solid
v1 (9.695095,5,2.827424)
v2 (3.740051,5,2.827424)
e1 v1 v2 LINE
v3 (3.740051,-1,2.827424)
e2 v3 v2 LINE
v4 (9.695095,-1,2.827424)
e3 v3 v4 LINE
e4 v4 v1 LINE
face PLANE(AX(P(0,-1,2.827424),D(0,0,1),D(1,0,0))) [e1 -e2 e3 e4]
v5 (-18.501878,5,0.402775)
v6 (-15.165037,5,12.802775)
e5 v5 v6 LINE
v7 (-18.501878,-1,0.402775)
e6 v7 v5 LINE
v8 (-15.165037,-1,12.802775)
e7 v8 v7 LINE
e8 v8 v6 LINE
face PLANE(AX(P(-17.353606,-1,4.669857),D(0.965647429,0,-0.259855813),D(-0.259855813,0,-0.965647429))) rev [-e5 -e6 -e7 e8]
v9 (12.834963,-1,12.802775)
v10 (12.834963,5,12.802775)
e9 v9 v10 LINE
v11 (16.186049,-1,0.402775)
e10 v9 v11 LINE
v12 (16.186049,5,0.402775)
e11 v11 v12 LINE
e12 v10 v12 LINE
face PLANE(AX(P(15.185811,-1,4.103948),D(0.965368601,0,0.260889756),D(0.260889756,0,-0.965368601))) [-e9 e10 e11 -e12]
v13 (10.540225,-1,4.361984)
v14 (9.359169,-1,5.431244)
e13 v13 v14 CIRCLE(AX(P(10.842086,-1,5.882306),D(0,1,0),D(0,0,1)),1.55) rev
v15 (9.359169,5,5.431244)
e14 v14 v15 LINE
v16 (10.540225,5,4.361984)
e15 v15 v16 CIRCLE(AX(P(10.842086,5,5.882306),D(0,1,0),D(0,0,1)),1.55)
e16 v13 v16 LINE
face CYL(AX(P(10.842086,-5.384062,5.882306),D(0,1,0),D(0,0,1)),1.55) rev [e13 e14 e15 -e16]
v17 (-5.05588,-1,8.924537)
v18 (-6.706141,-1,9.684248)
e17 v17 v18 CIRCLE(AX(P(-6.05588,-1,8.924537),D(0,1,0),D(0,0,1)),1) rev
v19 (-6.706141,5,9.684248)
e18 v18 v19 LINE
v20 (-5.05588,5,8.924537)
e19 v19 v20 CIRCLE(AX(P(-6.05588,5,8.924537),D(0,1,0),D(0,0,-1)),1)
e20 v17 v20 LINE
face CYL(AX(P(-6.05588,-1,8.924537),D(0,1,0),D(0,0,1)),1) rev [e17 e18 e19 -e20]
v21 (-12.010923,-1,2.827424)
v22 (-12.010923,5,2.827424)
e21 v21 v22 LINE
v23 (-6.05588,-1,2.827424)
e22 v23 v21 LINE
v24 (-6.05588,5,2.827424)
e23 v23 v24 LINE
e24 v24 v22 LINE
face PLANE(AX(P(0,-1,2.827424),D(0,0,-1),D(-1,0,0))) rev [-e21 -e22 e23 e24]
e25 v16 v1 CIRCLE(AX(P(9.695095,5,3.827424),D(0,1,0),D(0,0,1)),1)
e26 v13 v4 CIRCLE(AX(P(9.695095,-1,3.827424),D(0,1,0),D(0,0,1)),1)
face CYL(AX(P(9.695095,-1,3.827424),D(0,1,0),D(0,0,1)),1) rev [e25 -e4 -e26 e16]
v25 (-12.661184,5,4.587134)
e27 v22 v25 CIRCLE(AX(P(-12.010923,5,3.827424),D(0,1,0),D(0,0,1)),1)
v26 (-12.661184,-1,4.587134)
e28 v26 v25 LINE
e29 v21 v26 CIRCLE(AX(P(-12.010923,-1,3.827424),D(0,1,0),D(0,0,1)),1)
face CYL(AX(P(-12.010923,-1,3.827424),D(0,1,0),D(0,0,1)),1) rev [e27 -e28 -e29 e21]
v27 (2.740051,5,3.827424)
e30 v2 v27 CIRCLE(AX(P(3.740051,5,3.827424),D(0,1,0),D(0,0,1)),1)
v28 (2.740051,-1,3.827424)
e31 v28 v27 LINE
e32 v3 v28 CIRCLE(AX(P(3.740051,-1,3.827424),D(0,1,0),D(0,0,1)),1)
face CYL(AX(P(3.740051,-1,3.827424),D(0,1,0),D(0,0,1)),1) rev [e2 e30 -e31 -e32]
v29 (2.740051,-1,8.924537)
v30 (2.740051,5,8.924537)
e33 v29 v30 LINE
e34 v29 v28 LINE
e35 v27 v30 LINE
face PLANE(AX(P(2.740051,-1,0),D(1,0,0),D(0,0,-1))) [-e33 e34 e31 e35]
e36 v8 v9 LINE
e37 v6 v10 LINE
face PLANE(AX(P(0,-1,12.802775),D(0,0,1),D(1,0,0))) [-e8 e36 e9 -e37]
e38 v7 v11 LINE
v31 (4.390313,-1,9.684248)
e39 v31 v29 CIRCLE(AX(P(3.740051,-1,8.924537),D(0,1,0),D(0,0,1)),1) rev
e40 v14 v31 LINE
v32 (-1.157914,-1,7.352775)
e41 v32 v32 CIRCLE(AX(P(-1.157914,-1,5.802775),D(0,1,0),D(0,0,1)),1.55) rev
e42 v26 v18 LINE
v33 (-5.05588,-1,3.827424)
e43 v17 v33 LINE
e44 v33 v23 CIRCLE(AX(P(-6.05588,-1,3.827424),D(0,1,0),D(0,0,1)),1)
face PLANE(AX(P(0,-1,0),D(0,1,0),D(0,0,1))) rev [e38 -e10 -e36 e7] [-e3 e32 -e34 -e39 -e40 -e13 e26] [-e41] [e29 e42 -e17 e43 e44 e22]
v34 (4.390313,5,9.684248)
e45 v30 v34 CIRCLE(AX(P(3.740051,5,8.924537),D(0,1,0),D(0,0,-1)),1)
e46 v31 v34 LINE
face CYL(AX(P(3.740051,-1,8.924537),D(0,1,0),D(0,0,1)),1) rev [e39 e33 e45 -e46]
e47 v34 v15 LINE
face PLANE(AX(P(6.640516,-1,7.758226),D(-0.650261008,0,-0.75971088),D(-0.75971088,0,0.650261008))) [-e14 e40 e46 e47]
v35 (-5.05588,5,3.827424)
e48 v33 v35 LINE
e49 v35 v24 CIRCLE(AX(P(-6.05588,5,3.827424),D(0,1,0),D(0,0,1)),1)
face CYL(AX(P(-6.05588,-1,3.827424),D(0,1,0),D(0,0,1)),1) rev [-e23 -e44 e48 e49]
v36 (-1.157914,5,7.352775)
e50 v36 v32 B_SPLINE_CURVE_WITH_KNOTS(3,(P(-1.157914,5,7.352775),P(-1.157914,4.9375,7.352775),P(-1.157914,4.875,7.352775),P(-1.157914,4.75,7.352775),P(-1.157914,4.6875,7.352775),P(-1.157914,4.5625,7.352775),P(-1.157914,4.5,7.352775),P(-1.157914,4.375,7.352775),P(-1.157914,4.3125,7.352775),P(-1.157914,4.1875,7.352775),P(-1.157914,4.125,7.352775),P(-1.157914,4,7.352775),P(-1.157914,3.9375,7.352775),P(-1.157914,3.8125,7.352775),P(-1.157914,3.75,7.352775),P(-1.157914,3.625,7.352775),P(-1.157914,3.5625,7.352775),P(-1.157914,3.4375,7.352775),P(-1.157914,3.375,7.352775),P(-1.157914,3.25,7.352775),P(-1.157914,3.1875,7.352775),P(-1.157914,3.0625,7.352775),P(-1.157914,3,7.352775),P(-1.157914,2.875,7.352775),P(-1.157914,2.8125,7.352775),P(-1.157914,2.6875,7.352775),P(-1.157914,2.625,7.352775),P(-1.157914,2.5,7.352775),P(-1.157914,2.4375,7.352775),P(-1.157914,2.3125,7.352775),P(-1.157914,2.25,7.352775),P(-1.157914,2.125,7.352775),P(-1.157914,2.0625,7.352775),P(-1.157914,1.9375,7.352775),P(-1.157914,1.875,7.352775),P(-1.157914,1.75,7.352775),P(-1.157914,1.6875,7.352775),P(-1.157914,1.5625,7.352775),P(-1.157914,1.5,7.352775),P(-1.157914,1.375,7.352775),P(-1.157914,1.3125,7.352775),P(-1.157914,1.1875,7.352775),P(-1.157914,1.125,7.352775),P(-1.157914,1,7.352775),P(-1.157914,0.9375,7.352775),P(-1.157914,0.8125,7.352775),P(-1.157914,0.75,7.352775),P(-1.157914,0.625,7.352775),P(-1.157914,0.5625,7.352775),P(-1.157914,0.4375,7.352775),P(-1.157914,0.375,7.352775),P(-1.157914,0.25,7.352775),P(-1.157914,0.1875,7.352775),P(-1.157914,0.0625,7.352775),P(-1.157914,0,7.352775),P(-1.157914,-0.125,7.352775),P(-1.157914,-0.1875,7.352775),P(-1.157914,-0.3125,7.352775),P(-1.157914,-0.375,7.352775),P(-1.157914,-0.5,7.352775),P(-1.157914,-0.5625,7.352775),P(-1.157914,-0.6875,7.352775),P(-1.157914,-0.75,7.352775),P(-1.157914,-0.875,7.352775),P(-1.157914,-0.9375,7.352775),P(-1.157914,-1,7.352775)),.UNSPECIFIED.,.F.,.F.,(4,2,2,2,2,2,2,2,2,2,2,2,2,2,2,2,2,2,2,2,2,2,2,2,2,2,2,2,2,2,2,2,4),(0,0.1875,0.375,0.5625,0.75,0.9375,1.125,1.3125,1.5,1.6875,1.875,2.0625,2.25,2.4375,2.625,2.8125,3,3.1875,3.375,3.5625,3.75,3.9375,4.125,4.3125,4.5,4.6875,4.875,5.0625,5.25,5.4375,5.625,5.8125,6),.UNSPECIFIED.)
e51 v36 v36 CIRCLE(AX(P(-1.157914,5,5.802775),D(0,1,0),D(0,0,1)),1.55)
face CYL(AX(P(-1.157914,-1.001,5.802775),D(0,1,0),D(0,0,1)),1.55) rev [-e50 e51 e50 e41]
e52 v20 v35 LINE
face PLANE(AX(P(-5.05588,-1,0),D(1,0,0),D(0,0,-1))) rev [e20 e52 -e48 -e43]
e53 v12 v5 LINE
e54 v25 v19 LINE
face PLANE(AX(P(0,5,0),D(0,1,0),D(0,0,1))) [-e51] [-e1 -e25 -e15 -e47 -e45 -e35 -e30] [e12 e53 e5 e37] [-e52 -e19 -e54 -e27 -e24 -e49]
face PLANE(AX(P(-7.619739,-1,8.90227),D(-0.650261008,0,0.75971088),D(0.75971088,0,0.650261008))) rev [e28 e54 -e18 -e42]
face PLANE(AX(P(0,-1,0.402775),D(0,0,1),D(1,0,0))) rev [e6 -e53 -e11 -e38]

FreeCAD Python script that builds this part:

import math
import FreeCAD as App
import Part
import Sketcher

V = App.Vector

doc = App.newDocument("Part")
body = doc.addObject("PartDesign::Body", "Body")

# Sketch on XZ plane
sketch1 = body.newObject("Sketcher::SketchObject", "Sketch")
sketch1.AttachmentSupport = (doc.getObject("XZ_Plane"), [""])
sketch1.MapMode = "FlatFace"
sketch1.addGeometry([
    Part.LineSegment(V(12.8, 12.8, 0), V(16.2, 0.4, 0)),  # 0
    Part.LineSegment(V(16.2, 0.4, 0), V(-18.5, 0.4, 0)),  # 1
    Part.LineSegment(V(-18.5, 0.4, 0), V(-15.2, 12.8, 0)),  # 2
    Part.LineSegment(V(-15.2, 12.8, 0), V(12.8, 12.8, 0)),  # 3
    Part.LineSegment(V(-5.1, 3.8, 0), V(-5.1, 8.9, 0)),  # 4
    Part.ArcOfCircle(Part.Circle(V(-6.1, 8.9, 0), V(0, 0, 1), 1), math.radians(0), math.radians(131)),  # 5
    Part.LineSegment(V(-6.7, 9.7, 0), V(-12.7, 4.6, 0)),  # 6
    Part.ArcOfCircle(Part.Circle(V(-12, 3.8, 0), V(0, 0, 1), 1), math.radians(131), math.radians(270)),  # 7
    Part.LineSegment(V(-12, 2.8, 0), V(-6.1, 2.8, 0)),  # 8
    Part.ArcOfCircle(Part.Circle(V(-6.1, 3.8, 0), V(0, 0, 1), 1), math.radians(-90), math.radians(0)),  # 9
    Part.ArcOfCircle(Part.Circle(V(9.7, 3.8, 0), V(0, 0, 1), 1), math.radians(-90), math.radians(49)),  # 10
    Part.LineSegment(V(10.3, 4.6, 0), V(4.4, 9.7, 0)),  # 11
    Part.ArcOfCircle(Part.Circle(V(3.7, 8.9, 0), V(0, 0, 1), 1), math.radians(49), math.radians(180)),  # 12
    Part.LineSegment(V(2.7, 8.9, 0), V(2.7, 3.8, 0)),  # 13
    Part.ArcOfCircle(Part.Circle(V(3.7, 3.8, 0), V(0, 0, 1), 1), math.radians(-180), math.radians(-90)),  # 14
    Part.LineSegment(V(3.7, 2.8, 0), V(9.7, 2.8, 0)),  # 15
], False)
sketch1.addConstraint([
    Sketcher.Constraint("Coincident", 0, 2, 1, 1),
    Sketcher.Constraint("Coincident", 1, 2, 2, 1),
    Sketcher.Constraint("Coincident", 2, 2, 3, 1),
    Sketcher.Constraint("Coincident", 3, 2, 0, 1),
    Sketcher.Constraint("Tangent", 4, 2, 5, 1),
    Sketcher.Constraint("Tangent", 5, 2, 6, 1),
    Sketcher.Constraint("Tangent", 6, 2, 7, 1),
    Sketcher.Constraint("Tangent", 7, 2, 8, 1),
    Sketcher.Constraint("Tangent", 8, 2, 9, 1),
    Sketcher.Constraint("Tangent", 9, 2, 4, 1),
    Sketcher.Constraint("Tangent", 10, 2, 11, 1),
    Sketcher.Constraint("Tangent", 11, 2, 12, 1),
    Sketcher.Constraint("Tangent", 12, 2, 13, 1),
    Sketcher.Constraint("Tangent", 13, 2, 14, 1),
    Sketcher.Constraint("Tangent", 14, 2, 15, 1),
    Sketcher.Constraint("Tangent", 15, 2, 10, 1),
    Sketcher.Constraint("Horizontal", 1),
    Sketcher.Constraint("Horizontal", 3),
    Sketcher.Constraint("Vertical", 4),
    Sketcher.Constraint("Horizontal", 8),
    Sketcher.Constraint("Vertical", 13),
    Sketcher.Constraint("Horizontal", 15),
    Sketcher.Constraint("Equal", 5, 7),
    Sketcher.Constraint("Equal", 7, 9),
    Sketcher.Constraint("Equal", 9, 10),
    Sketcher.Constraint("Equal", 10, 12),
    Sketcher.Constraint("Equal", 12, 14),
    Sketcher.Constraint("Horizontal", 9, 3, 10, 3),
    Sketcher.Constraint("Horizontal", 5, 3, 12, 3),
    Sketcher.Constraint("Horizontal", 6, 2, 10, 2),
    Sketcher.Constraint("Radius", 5, 1.0),
    Sketcher.Constraint("DistanceX", 3, 1, 3, 2, 28.0),
    Sketcher.Constraint("DistanceY", 1, 2, 2, 2, 12.4),
    Sketcher.Constraint("DistanceX", 1, 2, 1, 1, 34.687927),
    Sketcher.Constraint("DistanceX", 8, 1, 8, 2, 5.955043),
    Sketcher.Constraint("DistanceY", 4, 1, 4, 2, 5.097113),
    Sketcher.Constraint("DistanceX", 5, 3, -1, 1, 6.05588),
    Sketcher.Constraint("DistanceX", -1, 1, 12, 3, 3.740051),
    Sketcher.Constraint("DistanceX", -1, 1, 0, 2, 16.186049),
    Sketcher.Constraint("DistanceY", 0, 2, 10, 3, 3.424649),
    Sketcher.Constraint("DistanceX", 1, 2, 2, 2, 3.336841),
    Sketcher.Constraint("DistanceY", -1, 1, 5, 3, 8.924537),
])
pad1 = body.newObject("PartDesign::Pad", "Pad")
pad1.Profile = sketch1
pad1.Length = 1

# Sketch on XZ plane
sketch2 = body.newObject("Sketcher::SketchObject", "Sketch001")
sketch2.AttachmentSupport = (doc.getObject("XZ_Plane"), [""])
sketch2.MapMode = "FlatFace"
sketch2.AttachmentOffset = App.Placement(V(0, 0, -5), App.Rotation())
sketch2.addGeometry([
    Part.LineSegment(V(12.8, 12.8, 0), V(16.2, 0.4, 0)),  # 0
    Part.LineSegment(V(16.2, 0.4, 0), V(-18.5, 0.4, 0)),  # 1
    Part.LineSegment(V(-18.5, 0.4, 0), V(-15.2, 12.8, 0)),  # 2
    Part.LineSegment(V(-15.2, 12.8, 0), V(12.8, 12.8, 0)),  # 3
    Part.LineSegment(V(-5.1, 3.8, 0), V(-5.1, 8.9, 0)),  # 4
    Part.ArcOfCircle(Part.Circle(V(-6.1, 8.9, 0), V(0, 0, 1), 1), math.radians(0), math.radians(131)),  # 5
    Part.LineSegment(V(-6.7, 9.7, 0), V(-12.7, 4.6, 0)),  # 6
    Part.ArcOfCircle(Part.Circle(V(-12, 3.8, 0), V(0, 0, 1), 1), math.radians(131), math.radians(270)),  # 7
    Part.LineSegment(V(-12, 2.8, 0), V(-6.1, 2.8, 0)),  # 8
    Part.ArcOfCircle(Part.Circle(V(-6.1, 3.8, 0), V(0, 0, 1), 1), math.radians(-90), math.radians(0)),  # 9
    Part.ArcOfCircle(Part.Circle(V(9.7, 3.8, 0), V(0, 0, 1), 1), math.radians(-90), math.radians(49)),  # 10
    Part.LineSegment(V(10.3, 4.6, 0), V(4.4, 9.7, 0)),  # 11
    Part.ArcOfCircle(Part.Circle(V(3.7, 8.9, 0), V(0, 0, 1), 1), math.radians(49), math.radians(180)),  # 12
    Part.LineSegment(V(2.7, 8.9, 0), V(2.7, 3.8, 0)),  # 13
    Part.ArcOfCircle(Part.Circle(V(3.7, 3.8, 0), V(0, 0, 1), 1), math.radians(-180), math.radians(-90)),  # 14
    Part.LineSegment(V(3.7, 2.8, 0), V(9.7, 2.8, 0)),  # 15
], False)
sketch2.addConstraint([
    Sketcher.Constraint("Coincident", 0, 2, 1, 1),
    Sketcher.Constraint("Coincident", 1, 2, 2, 1),
    Sketcher.Constraint("Coincident", 2, 2, 3, 1),
    Sketcher.Constraint("Coincident", 3, 2, 0, 1),
    Sketcher.Constraint("Tangent", 4, 2, 5, 1),
    Sketcher.Constraint("Tangent", 5, 2, 6, 1),
    Sketcher.Constraint("Tangent", 6, 2, 7, 1),
    Sketcher.Constraint("Tangent", 7, 2, 8, 1),
    Sketcher.Constraint("Tangent", 8, 2, 9, 1),
    Sketcher.Constraint("Tangent", 9, 2, 4, 1),
    Sketcher.Constraint("Tangent", 10, 2, 11, 1),
    Sketcher.Constraint("Tangent", 11, 2, 12, 1),
    Sketcher.Constraint("Tangent", 12, 2, 13, 1),
    Sketcher.Constraint("Tangent", 13, 2, 14, 1),
    Sketcher.Constraint("Tangent", 14, 2, 15, 1),
    Sketcher.Constraint("Tangent", 15, 2, 10, 1),
    Sketcher.Constraint("Horizontal", 1),
    Sketcher.Constraint("Horizontal", 3),
    Sketcher.Constraint("Vertical", 4),
    Sketcher.Constraint("Horizontal", 8),
    Sketcher.Constraint("Vertical", 13),
    Sketcher.Constraint("Horizontal", 15),
    Sketcher.Constraint("Equal", 5, 7),
    Sketcher.Constraint("Equal", 7, 9),
    Sketcher.Constraint("Equal", 9, 10),
    Sketcher.Constraint("Equal", 10, 12),
    Sketcher.Constraint("Equal", 12, 14),
    Sketcher.Constraint("Horizontal", 9, 3, 10, 3),
    Sketcher.Constraint("Horizontal", 5, 3, 12, 3),
    Sketcher.Constraint("Horizontal", 6, 2, 10, 2),
    Sketcher.Constraint("Radius", 5, 1.0),
    Sketcher.Constraint("DistanceX", 3, 1, 3, 2, 28.0),
    Sketcher.Constraint("DistanceY", 1, 2, 2, 2, 12.4),
    Sketcher.Constraint("DistanceX", 1, 2, 1, 1, 34.687927),
    Sketcher.Constraint("DistanceX", 8, 1, 8, 2, 5.955043),
    Sketcher.Constraint("DistanceY", 4, 1, 4, 2, 5.097113),
    Sketcher.Constraint("DistanceX", 5, 3, -1, 1, 6.05588),
    Sketcher.Constraint("DistanceX", -1, 1, 12, 3, 3.740051),
    Sketcher.Constraint("DistanceX", -1, 1, 0, 2, 16.186049),
    Sketcher.Constraint("DistanceY", 0, 2, 10, 3, 3.424649),
    Sketcher.Constraint("DistanceX", 1, 2, 2, 2, 3.336841),
    Sketcher.Constraint("DistanceY", -1, 1, 5, 3, 8.924537),
])
pad2 = body.newObject("PartDesign::Pad", "Pad001")
pad2.Profile = sketch2
pad2.Length = 5

# Sketch on XZ plane
sketch3 = body.newObject("Sketcher::SketchObject", "Sketch002")
sketch3.AttachmentSupport = (doc.getObject("XZ_Plane"), [""])
sketch3.MapMode = "FlatFace"
sketch3.AttachmentOffset = App.Placement(V(0, 0, -5), App.Rotation())
sketch3.addGeometry(Part.Circle(V(-1.2, 5.8, 0), V(0, 0, 1), 1.6), False)
sketch3.addConstraint([
    Sketcher.Constraint("Diameter", 0, 3.1),
    Sketcher.Constraint("DistanceX", 0, 3, -1, 1, 1.157914),
    Sketcher.Constraint("DistanceY", -1, 1, 0, 3, 5.802775),
])
pocket1 = body.newObject("PartDesign::Pocket", "Pocket")
pocket1.Profile = sketch3
pocket1.Type = "UpToFirst"
pocket1.Reversed = True

# Sketch on XZ plane
sketch4 = body.newObject("Sketcher::SketchObject", "Sketch003")
sketch4.AttachmentSupport = (doc.getObject("XZ_Plane"), [""])
sketch4.MapMode = "FlatFace"
sketch4.AttachmentOffset = App.Placement(V(0, 0, -5), App.Rotation())
sketch4.addGeometry(Part.Circle(V(10.8, 5.9, 0), V(0, 0, 1), 1.6), False)
sketch4.addConstraint([
    Sketcher.Constraint("Diameter", 0, 3.1),
    Sketcher.Constraint("DistanceX", -1, 1, 0, 3, 10.842086),
    Sketcher.Constraint("DistanceY", -1, 1, 0, 3, 5.882306),
])
pocket2 = body.newObject("PartDesign::Pocket", "Pocket001")
pocket2.Profile = sketch4
pocket2.Length = 6
pocket2.Reversed = True

doc.recompute()
